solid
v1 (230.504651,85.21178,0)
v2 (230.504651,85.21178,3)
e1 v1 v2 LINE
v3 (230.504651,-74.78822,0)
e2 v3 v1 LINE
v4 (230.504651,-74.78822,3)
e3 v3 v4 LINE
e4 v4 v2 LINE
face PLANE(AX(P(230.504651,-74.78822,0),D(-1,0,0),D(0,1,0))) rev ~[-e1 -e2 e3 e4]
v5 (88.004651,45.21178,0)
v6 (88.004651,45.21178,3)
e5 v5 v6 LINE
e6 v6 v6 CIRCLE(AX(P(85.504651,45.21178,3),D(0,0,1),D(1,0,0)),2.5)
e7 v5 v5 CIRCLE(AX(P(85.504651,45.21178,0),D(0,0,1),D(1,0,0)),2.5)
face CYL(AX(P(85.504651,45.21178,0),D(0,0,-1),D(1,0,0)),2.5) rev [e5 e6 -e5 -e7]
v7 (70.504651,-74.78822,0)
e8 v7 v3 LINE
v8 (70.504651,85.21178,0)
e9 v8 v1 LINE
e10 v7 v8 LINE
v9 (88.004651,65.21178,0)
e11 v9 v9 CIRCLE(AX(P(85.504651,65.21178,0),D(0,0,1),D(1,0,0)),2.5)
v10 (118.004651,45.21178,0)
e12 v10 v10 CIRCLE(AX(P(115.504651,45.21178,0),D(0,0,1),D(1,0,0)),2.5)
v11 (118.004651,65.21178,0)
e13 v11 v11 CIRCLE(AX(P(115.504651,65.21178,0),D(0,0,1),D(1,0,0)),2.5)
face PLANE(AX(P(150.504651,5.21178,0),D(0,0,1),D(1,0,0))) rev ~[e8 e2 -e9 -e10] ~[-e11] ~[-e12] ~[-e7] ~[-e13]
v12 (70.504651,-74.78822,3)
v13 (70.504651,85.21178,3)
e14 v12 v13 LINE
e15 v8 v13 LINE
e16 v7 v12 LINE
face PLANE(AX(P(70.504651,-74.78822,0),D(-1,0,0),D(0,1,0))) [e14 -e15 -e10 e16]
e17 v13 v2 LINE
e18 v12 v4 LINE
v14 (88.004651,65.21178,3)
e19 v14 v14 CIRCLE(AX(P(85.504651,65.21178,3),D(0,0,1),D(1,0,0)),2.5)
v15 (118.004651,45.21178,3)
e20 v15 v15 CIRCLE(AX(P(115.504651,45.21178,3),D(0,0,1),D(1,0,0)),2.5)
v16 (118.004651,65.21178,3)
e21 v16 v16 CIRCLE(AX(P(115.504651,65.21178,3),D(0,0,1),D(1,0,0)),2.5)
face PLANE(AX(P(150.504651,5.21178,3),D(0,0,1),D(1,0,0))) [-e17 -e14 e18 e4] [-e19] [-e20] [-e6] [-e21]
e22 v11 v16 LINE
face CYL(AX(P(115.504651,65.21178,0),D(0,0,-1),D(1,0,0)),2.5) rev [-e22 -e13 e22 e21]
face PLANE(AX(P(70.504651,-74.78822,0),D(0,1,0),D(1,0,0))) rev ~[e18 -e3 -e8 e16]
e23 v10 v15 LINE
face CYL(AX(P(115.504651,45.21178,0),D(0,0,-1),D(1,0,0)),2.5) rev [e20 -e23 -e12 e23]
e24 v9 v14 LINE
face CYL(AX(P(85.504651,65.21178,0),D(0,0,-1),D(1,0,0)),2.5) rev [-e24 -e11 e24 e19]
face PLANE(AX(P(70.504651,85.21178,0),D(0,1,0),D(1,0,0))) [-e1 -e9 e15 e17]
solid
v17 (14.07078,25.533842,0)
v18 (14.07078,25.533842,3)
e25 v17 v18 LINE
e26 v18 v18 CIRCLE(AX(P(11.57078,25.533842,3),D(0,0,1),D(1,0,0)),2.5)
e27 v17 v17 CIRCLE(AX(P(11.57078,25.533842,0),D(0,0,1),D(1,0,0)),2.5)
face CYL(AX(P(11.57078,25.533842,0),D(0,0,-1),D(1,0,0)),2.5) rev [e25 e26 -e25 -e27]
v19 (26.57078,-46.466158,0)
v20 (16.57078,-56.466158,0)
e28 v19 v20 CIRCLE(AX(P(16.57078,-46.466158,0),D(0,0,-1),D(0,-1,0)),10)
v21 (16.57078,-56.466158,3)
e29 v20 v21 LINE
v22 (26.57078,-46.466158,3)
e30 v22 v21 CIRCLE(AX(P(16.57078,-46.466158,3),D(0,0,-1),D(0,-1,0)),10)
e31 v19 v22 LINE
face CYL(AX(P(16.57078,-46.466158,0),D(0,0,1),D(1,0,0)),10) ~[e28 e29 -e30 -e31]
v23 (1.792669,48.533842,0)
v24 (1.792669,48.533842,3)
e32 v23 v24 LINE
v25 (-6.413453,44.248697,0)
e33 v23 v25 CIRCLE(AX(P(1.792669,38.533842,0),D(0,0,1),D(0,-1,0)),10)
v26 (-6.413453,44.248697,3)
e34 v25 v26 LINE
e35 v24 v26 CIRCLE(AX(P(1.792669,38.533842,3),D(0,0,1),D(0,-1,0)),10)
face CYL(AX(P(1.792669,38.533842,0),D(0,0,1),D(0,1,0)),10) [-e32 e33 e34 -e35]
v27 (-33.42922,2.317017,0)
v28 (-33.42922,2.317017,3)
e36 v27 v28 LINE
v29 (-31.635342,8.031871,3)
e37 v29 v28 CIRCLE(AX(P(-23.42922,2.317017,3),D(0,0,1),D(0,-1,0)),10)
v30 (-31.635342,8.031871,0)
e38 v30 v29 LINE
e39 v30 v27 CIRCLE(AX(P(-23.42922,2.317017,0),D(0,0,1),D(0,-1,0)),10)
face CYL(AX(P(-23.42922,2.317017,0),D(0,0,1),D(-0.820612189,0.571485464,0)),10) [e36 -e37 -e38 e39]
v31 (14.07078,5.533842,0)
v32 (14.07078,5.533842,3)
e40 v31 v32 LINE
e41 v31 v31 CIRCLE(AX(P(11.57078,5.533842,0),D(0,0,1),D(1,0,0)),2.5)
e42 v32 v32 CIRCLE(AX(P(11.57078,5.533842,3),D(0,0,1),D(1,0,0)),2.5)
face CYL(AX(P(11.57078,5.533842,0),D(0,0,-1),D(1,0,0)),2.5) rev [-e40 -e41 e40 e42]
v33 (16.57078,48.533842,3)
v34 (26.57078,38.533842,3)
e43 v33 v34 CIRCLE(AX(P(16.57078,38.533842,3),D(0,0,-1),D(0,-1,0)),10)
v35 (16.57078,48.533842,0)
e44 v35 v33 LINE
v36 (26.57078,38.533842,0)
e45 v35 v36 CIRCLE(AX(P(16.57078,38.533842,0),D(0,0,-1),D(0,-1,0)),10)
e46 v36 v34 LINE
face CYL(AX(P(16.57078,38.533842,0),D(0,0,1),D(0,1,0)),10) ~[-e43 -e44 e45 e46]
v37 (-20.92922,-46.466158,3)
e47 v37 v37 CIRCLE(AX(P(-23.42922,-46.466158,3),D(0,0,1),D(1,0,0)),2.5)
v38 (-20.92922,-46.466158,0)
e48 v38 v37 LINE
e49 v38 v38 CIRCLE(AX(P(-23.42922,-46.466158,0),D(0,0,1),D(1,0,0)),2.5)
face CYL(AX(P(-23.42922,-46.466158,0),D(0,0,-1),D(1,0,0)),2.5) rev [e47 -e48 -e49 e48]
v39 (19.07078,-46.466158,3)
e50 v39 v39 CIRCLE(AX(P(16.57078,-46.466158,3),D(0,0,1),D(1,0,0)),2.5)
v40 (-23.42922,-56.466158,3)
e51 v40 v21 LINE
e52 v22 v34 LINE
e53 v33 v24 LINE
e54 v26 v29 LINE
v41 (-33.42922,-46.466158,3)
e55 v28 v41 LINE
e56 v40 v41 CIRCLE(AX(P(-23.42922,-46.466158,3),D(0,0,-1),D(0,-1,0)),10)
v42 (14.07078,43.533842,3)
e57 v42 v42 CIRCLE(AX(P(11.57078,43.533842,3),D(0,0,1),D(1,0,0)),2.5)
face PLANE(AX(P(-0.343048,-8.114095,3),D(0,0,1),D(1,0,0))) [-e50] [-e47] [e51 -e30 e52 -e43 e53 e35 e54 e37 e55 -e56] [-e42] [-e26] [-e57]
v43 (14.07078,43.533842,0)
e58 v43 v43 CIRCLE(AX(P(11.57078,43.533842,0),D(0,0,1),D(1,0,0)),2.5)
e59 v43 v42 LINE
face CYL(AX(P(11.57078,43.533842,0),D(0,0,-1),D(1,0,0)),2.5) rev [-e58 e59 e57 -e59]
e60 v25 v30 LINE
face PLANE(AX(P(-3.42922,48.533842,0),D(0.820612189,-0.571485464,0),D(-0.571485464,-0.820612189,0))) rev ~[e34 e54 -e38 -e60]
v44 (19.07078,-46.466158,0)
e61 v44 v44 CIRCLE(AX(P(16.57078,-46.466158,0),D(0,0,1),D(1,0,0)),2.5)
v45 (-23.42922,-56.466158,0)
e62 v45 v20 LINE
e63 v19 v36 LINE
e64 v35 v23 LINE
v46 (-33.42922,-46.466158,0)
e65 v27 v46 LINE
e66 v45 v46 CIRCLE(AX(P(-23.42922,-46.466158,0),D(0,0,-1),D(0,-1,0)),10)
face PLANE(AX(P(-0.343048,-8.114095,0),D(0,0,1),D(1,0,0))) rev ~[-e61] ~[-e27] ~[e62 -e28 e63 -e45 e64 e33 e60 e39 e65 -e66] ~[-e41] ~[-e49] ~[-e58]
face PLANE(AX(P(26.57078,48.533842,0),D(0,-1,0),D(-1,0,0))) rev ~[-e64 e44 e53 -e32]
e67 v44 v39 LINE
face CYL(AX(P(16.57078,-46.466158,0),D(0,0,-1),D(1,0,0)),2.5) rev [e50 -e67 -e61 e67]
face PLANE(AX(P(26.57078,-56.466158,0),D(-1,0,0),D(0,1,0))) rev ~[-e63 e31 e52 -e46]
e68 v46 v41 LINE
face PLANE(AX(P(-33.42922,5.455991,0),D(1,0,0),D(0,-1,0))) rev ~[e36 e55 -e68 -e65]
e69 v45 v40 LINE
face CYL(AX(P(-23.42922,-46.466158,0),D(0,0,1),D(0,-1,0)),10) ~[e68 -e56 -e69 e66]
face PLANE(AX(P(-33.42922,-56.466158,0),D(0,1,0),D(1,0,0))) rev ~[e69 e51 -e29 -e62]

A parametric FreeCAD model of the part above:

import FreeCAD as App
import Part
import Sketcher
from FreeCAD import Vector


def edges_at(feature, points):
    """Names of the edges that pass closest to the given points."""
    edges = feature.Shape.Edges
    near = lambda p: min(range(len(edges)), key=lambda i: edges[i].distToShape(Part.Vertex(*p))[0])
    return sorted({f"Edge{near(p) + 1}" for p in points})

doc = App.newDocument("Part")
params = doc.addObject("Spreadsheet::Sheet", "Params")
for row, (alias, value) in enumerate([
    ("sketch1_diameter", "5 mm"),
    ("sketch1_width", "30 mm"),
    ("sketch1_width2", "60 mm"),
    ("sketch1_height", "105 mm"),
    ("pad1_length", "3 mm"),
    ("fillet_radius", "10 mm"),
    ("sketch2_diameter", "5 mm"),
    ("sketch2_width", "160 mm"),
    ("pad2_length", "3 mm"),
], start=1):
    params.set(f"A{row}", alias)
    params.set(f"B{row}", "=" + value)
    params.setAlias(f"B{row}", alias)

body = doc.addObject("PartDesign::Body", "Body")

# Sketch on XY plane
sketch1 = body.newObject("Sketcher::SketchObject", "Sketch")
sketch1.AttachmentSupport = (doc.getObject("XY_Plane"), [""])
sketch1.MapMode = "FlatFace"
sketch1.addGeometry(Part.LineSegment(Vector(26.6, 48.5, 0), Vector(-3.4, 48.5, 0)), False)
sketch1.addGeometry(Part.LineSegment(Vector(-3.4, 48.5, 0), Vector(-33.4, 5.5, 0)), False)
sketch1.addGeometry(Part.LineSegment(Vector(-33.4, 5.5, 0), Vector(-33.4, -56.5, 0)), False)
sketch1.addGeometry(Part.LineSegment(Vector(-33.4, -56.5, 0), Vector(26.6, -56.5, 0)), False)
sketch1.addGeometry(Part.LineSegment(Vector(26.6, -56.5, 0), Vector(26.6, 48.5, 0)), False)
sketch1.addGeometry(Part.Circle(Vector(-23.4, -46.5, 0), Vector(0, 0, 1), 2.5), False)
sketch1.addGeometry(Part.Circle(Vector(16.6, -46.5, 0), Vector(0, 0, 1), 2.5), False)
sketch1.addGeometry(Part.Circle(Vector(11.6, 5.5, 0), Vector(0, 0, 1), 2.5), False)
sketch1.addGeometry(Part.Circle(Vector(11.6, 25.5, 0), Vector(0, 0, 1), 2.5), False)
sketch1.addGeometry(Part.Circle(Vector(11.6, 43.5, 0), Vector(0, 0, 1), 2.5), False)
sketch1.addConstraint(Sketcher.Constraint("Coincident", 0, 2, 1, 1))
sketch1.addConstraint(Sketcher.Constraint("Coincident", 1, 2, 2, 1))
sketch1.addConstraint(Sketcher.Constraint("Coincident", 2, 2, 3, 1))
sketch1.addConstraint(Sketcher.Constraint("Coincident", 3, 2, 4, 1))
sketch1.addConstraint(Sketcher.Constraint("Coincident", 4, 2, 0, 1))
sketch1.addConstraint(Sketcher.Constraint("Horizontal", 0))
sketch1.addConstraint(Sketcher.Constraint("Vertical", 2))
sketch1.addConstraint(Sketcher.Constraint("Horizontal", 3))
sketch1.addConstraint(Sketcher.Constraint("Vertical", 4))
sketch1.addConstraint(Sketcher.Constraint("Equal", 5, 6))
sketch1.addConstraint(Sketcher.Constraint("Equal", 6, 7))
sketch1.addConstraint(Sketcher.Constraint("Equal", 7, 8))
sketch1.addConstraint(Sketcher.Constraint("Equal", 8, 9))
sketch1.addConstraint(Sketcher.Constraint("Horizontal", 5, 3, 6, 3))
sketch1.addConstraint(Sketcher.Constraint("Vertical", 7, 3, 8, 3))
sketch1.addConstraint(Sketcher.Constraint("Vertical", 8, 3, 9, 3))
sketch1.addConstraint(Sketcher.Constraint("Diameter", 5, 5.0))
sketch1.addConstraint(Sketcher.Constraint("DistanceX", 0, 2, 0, 1, 30.0))
sketch1.addConstraint(Sketcher.Constraint("DistanceX", 3, 1, 3, 2, 60.0))
sketch1.addConstraint(Sketcher.Constraint("DistanceY", 4, 1, 4, 2, 105.0))
sketch1.addConstraint(Sketcher.Constraint("DistanceX", 5, 3, 6, 3, 40.0))
sketch1.addConstraint(Sketcher.Constraint("DistanceX", 7, 3, 6, 3, 5.0))
sketch1.addConstraint(Sketcher.Constraint("DistanceY", 6, 3, 7, 3, 52.0))
sketch1.addConstraint(Sketcher.Constraint("DistanceY", 7, 3, 8, 3, 20.0))
sketch1.addConstraint(Sketcher.Constraint("DistanceY", 8, 3, 9, 3, 18.0))
sketch1.addConstraint(Sketcher.Constraint("DistanceX", 0, 2, 9, 3, 15.0))
sketch1.addConstraint(Sketcher.Constraint("DistanceY", 9, 3, 0, 2, 5.0))
sketch1.addConstraint(Sketcher.Constraint("DistanceY", 2, 2, 2, 1, 61.922149))
sketch1.addConstraint(Sketcher.Constraint("DistanceX", 5, 3, -1, 1, 23.42922))
sketch1.addConstraint(Sketcher.Constraint("DistanceY", -1, 1, 8, 3, 25.533842))
sketch1.setExpression("Constraints[16]", "Params.sketch1_diameter")
sketch1.setExpression("Constraints[17]", "Params.sketch1_width")
sketch1.setExpression("Constraints[18]", "Params.sketch1_width2")
sketch1.setExpression("Constraints[19]", "Params.sketch1_height")
pad1 = body.newObject("PartDesign::Pad", "Pad")
pad1.Profile = sketch1
pad1.setExpression("Length", "Params.pad1_length")
doc.recompute()

fillet = body.newObject("PartDesign::Fillet", "Fillet")
fillet.Base = (pad1, edges_at(pad1, [
    (26.571, 48.534, 1.5),
    (-3.429, 48.534, 1.5),
    (26.571, -56.466, 1.5),
    (-33.429, -56.466, 1.5),
    (-33.429, 5.456, 1.5),
]))
fillet.setExpression("Radius", "Params.fillet_radius")
body2 = doc.addObject("PartDesign::Body", "Body001")

# Sketch on XY plane
sketch2 = body2.newObject("Sketcher::SketchObject", "Sketch001")
sketch2.AttachmentSupport = (doc.getObject("XY_Plane001"), [""])
sketch2.MapMode = "FlatFace"
sketch2.addGeometry(Part.LineSegment(Vector(70.5, 85.2, 0), Vector(70.5, -74.8, 0)), False)
sketch2.addGeometry(Part.LineSegment(Vector(70.5, -74.8, 0), Vector(230.5, -74.8, 0)), False)
sketch2.addGeometry(Part.LineSegment(Vector(230.5, -74.8, 0), Vector(230.5, 85.2, 0)), False)
sketch2.addGeometry(Part.LineSegment(Vector(230.5, 85.2, 0), Vector(70.5, 85.2, 0)), False)
sketch2.addGeometry(Part.Circle(Vector(85.5, 45.2, 0), Vector(0, 0, 1), 2.5), False)
sketch2.addGeometry(Part.Circle(Vector(115.5, 45.2, 0), Vector(0, 0, 1), 2.5), False)
sketch2.addGeometry(Part.Circle(Vector(85.5, 65.2, 0), Vector(0, 0, 1), 2.5), False)
sketch2.addGeometry(Part.Circle(Vector(115.5, 65.2, 0), Vector(0, 0, 1), 2.5), False)
sketch2.addConstraint(Sketcher.Constraint("Coincident", 0, 2, 1, 1))
sketch2.addConstraint(Sketcher.Constraint("Coincident", 1, 2, 2, 1))
sketch2.addConstraint(Sketcher.Constraint("Coincident", 2, 2, 3, 1))
sketch2.addConstraint(Sketcher.Constraint("Coincident", 3, 2, 0, 1))
sketch2.addConstraint(Sketcher.Constraint("Vertical", 0))
sketch2.addConstraint(Sketcher.Constraint("Horizontal", 1))
sketch2.addConstraint(Sketcher.Constraint("Vertical", 2))
sketch2.addConstraint(Sketcher.Constraint("Horizontal", 3))
sketch2.addConstraint(Sketcher.Constraint("Equal", 4, 5))
sketch2.addConstraint(Sketcher.Constraint("Equal", 5, 6))
sketch2.addConstraint(Sketcher.Constraint("Equal", 6, 7))
sketch2.addConstraint(Sketcher.Constraint("Horizontal", 4, 3, 5, 3))
sketch2.addConstraint(Sketcher.Constraint("Horizontal", 6, 3, 7, 3))
sketch2.addConstraint(Sketcher.Constraint("Vertical", 4, 3, 6, 3))
sketch2.addConstraint(Sketcher.Constraint("Vertical", 5, 3, 7, 3))
sketch2.addConstraint(Sketcher.Constraint("Equal", 3, 0))
sketch2.addConstraint(Sketcher.Constraint("Diameter", 4, 5.0))
sketch2.addConstraint(Sketcher.Constraint("DistanceX", 1, 1, 1, 2, 160.0))
sketch2.addConstraint(Sketcher.Constraint("DistanceX", 4, 3, 5, 3, 30.0))
sketch2.addConstraint(Sketcher.Constraint("DistanceY", 4, 3, 6, 3, 20.0))
sketch2.addConstraint(Sketcher.Constraint("DistanceX", 0, 2, 4, 3, 15.0))
sketch2.addConstraint(Sketcher.Constraint("DistanceY", 0, 2, 4, 3, 120.0))
sketch2.addConstraint(Sketcher.Constraint("DistanceX", -1, 1, 4, 3, 85.504651))
sketch2.addConstraint(Sketcher.Constraint("DistanceY", -1, 1, 4, 3, 45.21178))
sketch2.setExpression("Constraints[16]", "Params.sketch2_diameter")
sketch2.setExpression("Constraints[17]", "Params.sketch2_width")
pad2 = body2.newObject("PartDesign::Pad", "Pad001")
pad2.Profile = sketch2
pad2.setExpression("Length", "Params.pad2_length")

doc.recompute()
